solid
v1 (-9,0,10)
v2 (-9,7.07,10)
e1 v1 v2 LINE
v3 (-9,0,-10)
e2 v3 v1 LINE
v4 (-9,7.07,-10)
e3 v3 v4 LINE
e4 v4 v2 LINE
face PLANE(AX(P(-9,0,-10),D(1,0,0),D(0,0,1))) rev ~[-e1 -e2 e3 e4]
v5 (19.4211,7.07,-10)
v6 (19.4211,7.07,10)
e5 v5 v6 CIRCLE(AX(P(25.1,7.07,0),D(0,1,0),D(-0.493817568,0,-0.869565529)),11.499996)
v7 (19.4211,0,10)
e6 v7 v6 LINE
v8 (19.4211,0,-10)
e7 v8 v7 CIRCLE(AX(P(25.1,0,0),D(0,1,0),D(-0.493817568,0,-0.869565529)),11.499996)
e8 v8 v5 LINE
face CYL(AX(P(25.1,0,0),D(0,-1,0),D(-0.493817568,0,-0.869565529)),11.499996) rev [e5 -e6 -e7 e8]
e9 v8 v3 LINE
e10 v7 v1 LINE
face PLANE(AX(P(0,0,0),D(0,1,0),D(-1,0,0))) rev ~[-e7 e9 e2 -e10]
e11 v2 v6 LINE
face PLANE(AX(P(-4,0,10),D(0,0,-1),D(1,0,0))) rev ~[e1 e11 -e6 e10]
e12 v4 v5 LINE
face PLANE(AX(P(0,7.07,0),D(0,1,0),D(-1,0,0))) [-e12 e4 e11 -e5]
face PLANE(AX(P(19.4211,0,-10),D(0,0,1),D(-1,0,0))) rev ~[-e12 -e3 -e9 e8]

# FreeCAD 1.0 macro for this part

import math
import FreeCAD as App
import Part
import Sketcher
Q = App.Units.Quantity

doc = App.newDocument("Part")
params = doc.addObject("Spreadsheet::Sheet", "Params")
for row, (alias, value) in enumerate([
    ("sketch1_radius", "11.5 mm"),
    ("sketch1_height", "20 mm"),
    ("pad1_length", "7.07 mm"),
], start=1):
    params.set(f"A{row}", alias)
    params.set(f"B{row}", "=" + value)
    params.setAlias(f"B{row}", alias)

body = doc.addObject("PartDesign::Body", "Body")

# Sketch on XZ plane
sketch1 = doc.addObject("Sketcher::SketchObject", "Sketch")
body.addObject(sketch1)
sketch1.AttachmentSupport = (doc.XZ_Plane, [""])
sketch1.MapMode = "FlatFace"
sketch1.addGeometry([
    Part.LineSegment(App.Vector(19, -10, 0), App.Vector(-9, -10, 0)),
    Part.LineSegment(App.Vector(-9, -10, 0), App.Vector(-9, 10, 0)),
    Part.LineSegment(App.Vector(-9, 10, 0), App.Vector(19, 10, 0)),
    Part.ArcOfCircle(Part.Circle(App.Vector(25, 0, 0), App.Vector(0, 0, 1), 11), math.radians(120), math.radians(240)),
], False)
sketch1.addConstraint([
    Sketcher.Constraint("Coincident", 0, 2, 1, 1),
    Sketcher.Constraint("Coincident", 1, 2, 2, 1),
    Sketcher.Constraint("Coincident", 2, 2, 3, 1),
    Sketcher.Constraint("Coincident", 3, 2, 0, 1),
    Sketcher.Constraint("Horizontal", 0),
    Sketcher.Constraint("Vertical", 1),
    Sketcher.Constraint("Horizontal", 2),
    Sketcher.Constraint("Symmetric", 2, 2, 3, 2, -1),
    Sketcher.Constraint("Radius", 3, Q("11.5 mm")),
    Sketcher.Constraint("DistanceY", 1, 1, 1, 2, Q("20 mm")),
    Sketcher.Constraint("DistanceX", 0, 2, -1, 1, Q("9 mm")),
    Sketcher.Constraint("DistanceX", -1, 1, 3, 3, Q("25.1 mm")),
])
sketch1.setExpression("Constraints[8]", "Params.sketch1_radius")
sketch1.setExpression("Constraints[9]", "Params.sketch1_height")
pad1 = doc.addObject("PartDesign::Pad", "Pad")
body.addObject(pad1)
pad1.Profile = sketch1
pad1.setExpression("Length", "Params.pad1_length")
pad1.Reversed = True

doc.recompute()
